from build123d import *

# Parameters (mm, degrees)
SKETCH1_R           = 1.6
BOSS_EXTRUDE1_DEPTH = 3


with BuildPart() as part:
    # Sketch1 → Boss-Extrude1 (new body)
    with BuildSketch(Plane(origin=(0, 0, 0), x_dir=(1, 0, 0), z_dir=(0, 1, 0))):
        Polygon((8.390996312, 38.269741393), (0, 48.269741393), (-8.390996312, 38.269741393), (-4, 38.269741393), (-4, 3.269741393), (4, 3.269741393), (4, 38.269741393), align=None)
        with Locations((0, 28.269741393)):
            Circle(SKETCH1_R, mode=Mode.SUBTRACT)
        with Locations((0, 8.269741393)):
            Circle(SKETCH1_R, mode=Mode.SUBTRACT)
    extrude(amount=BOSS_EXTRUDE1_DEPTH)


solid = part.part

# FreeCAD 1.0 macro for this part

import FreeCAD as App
import Part
import Sketcher

V = App.Vector
Q = App.Units.Quantity


def add_polygon(sketch, points):
    """Adds a closed chain of lines whose ends are joined by coincident constraints."""
    first, n = sketch.GeometryCount, len(points)
    for a, b in zip(points, points[1:] + points[:1]):
        sketch.addGeometry(Part.LineSegment(App.Vector(*a, 0), App.Vector(*b, 0)), False)
    for i in range(n):
        sketch.addConstraint(Sketcher.Constraint("Coincident", first + i, 2, first + (i + 1) % n, 1))

doc = App.newDocument("Part")
body = doc.addObject("PartDesign::Body", "Body")

# Sketch on XZ plane
sketch1 = body.newObject("Sketcher::SketchObject", "Sketch")
sketch1.AttachmentSupport = (doc.getObject("XZ_Plane"), [""])
sketch1.MapMode = "FlatFace"
add_polygon(sketch1, [(8.4, -38.3), (0, -48.3), (-8.4, -38.3), (-4, -38.3), (-4, -3.3), (4, -3.3), (4, -38.3)])  # lines 0-6
sketch1.addGeometry(Part.Circle(V(0, -8.3, 0), V(0, 0, 1), 1.6), False)  # 7
sketch1.addGeometry(Part.Circle(V(0, -28.3, 0), V(0, 0, 1), 1.6), False)  # 8
sketch1.addConstraint([
    Sketcher.Constraint("Horizontal", 2),
    Sketcher.Constraint("Vertical", 3),
    Sketcher.Constraint("Horizontal", 4),
    Sketcher.Constraint("Vertical", 5),
    Sketcher.Constraint("Horizontal", 6),
    Sketcher.Constraint("Equal", 7, 8),
    Sketcher.Constraint("Symmetric", 2, 2, 5, 2, -2),
    Sketcher.Constraint("PointOnObject", 7, 3, -2),
    Sketcher.Constraint("PointOnObject", 8, 3, -2),
    Sketcher.Constraint("PointOnObject", 0, 2, -2),
    Sketcher.Constraint("Equal", 2, 6),
    Sketcher.Constraint("Diameter", 7, Q("3.2 mm")),
    Sketcher.Constraint("DistanceX", 4, 1, 4, 2, Q("8 mm")),
    Sketcher.Constraint("DistanceY", 3, 1, 3, 2, Q("35 mm")),
    Sketcher.Constraint("Angle", 0, Q("-130 deg")),
    Sketcher.Constraint("DistanceY", 8, 3, 7, 3, Q("20 mm")),
    Sketcher.Constraint("DistanceY", 0, 2, 8, 3, Q("20 mm")),
    Sketcher.Constraint("DistanceY", 1, 2, 8, 3, Q("10 mm")),
    Sketcher.Constraint("DistanceY", 7, 3, -1, 1, Q("8.269741 mm")),
])
pad1 = body.newObject("PartDesign::Pad", "Pad")
pad1.Profile = sketch1
pad1.Length = 3
pad1.Reversed = True

doc.recompute()
